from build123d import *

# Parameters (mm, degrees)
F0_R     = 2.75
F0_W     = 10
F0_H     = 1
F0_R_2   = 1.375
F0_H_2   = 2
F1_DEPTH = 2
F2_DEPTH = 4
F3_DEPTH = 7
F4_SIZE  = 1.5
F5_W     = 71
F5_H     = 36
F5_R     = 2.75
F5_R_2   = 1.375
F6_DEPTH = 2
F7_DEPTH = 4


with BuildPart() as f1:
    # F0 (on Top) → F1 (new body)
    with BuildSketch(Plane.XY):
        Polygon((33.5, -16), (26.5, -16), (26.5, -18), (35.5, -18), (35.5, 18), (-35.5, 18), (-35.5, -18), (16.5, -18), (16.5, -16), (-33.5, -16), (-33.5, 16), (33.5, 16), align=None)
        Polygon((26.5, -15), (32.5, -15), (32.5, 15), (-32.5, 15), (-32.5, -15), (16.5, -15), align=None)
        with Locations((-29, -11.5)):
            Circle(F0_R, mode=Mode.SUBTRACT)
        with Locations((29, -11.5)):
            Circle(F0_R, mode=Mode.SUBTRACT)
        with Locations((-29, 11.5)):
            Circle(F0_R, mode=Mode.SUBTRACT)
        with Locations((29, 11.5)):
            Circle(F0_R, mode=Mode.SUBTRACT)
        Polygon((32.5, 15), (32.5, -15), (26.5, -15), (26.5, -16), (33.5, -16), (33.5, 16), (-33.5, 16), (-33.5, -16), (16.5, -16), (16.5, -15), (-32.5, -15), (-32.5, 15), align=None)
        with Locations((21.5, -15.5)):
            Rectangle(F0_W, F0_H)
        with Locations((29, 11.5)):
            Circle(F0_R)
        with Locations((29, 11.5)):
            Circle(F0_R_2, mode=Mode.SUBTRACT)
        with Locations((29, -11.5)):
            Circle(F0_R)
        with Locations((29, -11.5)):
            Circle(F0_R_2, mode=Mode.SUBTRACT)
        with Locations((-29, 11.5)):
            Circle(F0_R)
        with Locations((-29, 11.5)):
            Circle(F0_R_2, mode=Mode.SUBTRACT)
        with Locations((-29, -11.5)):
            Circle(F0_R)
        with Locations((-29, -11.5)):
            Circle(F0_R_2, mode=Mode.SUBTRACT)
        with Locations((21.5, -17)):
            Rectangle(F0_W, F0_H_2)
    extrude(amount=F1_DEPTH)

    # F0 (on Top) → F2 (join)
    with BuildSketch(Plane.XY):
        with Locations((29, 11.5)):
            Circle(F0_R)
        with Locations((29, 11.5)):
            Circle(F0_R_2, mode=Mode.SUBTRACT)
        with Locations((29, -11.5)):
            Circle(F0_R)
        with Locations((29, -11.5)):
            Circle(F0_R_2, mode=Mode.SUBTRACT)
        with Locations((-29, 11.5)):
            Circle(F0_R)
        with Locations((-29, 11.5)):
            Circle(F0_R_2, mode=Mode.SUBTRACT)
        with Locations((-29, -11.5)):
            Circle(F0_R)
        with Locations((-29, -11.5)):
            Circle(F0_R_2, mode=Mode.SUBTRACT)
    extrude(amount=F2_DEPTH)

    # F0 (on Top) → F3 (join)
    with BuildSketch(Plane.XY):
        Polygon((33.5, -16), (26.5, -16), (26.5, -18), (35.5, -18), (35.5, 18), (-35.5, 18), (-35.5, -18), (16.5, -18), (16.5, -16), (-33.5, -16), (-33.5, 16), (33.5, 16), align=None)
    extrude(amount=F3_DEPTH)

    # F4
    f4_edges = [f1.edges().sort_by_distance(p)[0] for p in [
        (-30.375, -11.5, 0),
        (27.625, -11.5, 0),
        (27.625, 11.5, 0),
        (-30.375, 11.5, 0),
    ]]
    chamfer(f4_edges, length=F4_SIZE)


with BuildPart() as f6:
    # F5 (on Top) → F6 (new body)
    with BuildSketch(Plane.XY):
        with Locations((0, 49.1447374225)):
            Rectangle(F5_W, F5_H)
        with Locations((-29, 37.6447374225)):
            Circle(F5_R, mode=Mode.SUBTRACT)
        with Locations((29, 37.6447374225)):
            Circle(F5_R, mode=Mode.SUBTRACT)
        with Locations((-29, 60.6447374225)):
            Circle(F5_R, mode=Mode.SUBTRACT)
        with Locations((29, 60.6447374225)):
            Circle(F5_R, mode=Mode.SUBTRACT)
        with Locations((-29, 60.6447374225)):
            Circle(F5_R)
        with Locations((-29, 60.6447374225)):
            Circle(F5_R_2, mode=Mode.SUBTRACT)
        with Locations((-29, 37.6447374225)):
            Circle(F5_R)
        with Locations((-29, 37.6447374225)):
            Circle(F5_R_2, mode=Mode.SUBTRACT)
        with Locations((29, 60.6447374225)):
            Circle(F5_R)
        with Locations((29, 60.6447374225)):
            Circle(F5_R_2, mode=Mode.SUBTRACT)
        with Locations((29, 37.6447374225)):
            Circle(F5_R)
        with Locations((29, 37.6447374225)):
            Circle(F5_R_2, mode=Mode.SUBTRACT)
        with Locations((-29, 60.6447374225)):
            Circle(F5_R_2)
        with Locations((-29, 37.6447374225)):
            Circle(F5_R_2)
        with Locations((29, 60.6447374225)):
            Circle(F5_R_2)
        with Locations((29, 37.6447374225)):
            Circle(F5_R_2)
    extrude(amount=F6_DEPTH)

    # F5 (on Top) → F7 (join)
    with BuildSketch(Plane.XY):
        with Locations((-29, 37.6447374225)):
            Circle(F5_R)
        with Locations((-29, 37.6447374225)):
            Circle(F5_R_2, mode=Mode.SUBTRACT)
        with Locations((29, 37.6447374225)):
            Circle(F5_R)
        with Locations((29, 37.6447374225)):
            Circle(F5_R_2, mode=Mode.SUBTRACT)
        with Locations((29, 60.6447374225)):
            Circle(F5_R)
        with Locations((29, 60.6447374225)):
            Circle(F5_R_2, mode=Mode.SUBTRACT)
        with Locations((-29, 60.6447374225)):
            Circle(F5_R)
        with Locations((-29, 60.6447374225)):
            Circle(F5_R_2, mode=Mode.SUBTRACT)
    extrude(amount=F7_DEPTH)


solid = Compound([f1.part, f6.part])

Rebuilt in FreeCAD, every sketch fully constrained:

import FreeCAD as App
import Part
import Sketcher


def edges_at(feature, points):
    """Names of the edges that pass closest to the given points."""
    edges = feature.Shape.Edges
    near = lambda p: min(range(len(edges)), key=lambda i: edges[i].distToShape(Part.Vertex(*p))[0])
    return sorted({f"Edge{near(p) + 1}" for p in points})

doc = App.newDocument("Part")
body = doc.addObject("PartDesign::Body", "Body")

# Sketch on XY plane
sketch1 = body.newObject("Sketcher::SketchObject", "Sketch")
sketch1.AttachmentSupport = (doc.getObject("XY_Plane"), [""])
sketch1.MapMode = "FlatFace"
sketch1.addGeometry([
    Part.LineSegment(App.Vector(35.5, -18, 0), App.Vector(35.5, 18, 0)),  # 0
    Part.LineSegment(App.Vector(35.5, 18, 0), App.Vector(-35.5, 18, 0)),  # 1
    Part.LineSegment(App.Vector(-35.5, 18, 0), App.Vector(-35.5, -18, 0)),  # 2
    Part.LineSegment(App.Vector(-35.5, -18, 0), App.Vector(35.5, -18, 0)),  # 3
    Part.Circle(App.Vector(-29, -11.5, 0), App.Vector(0, 0, 1), 1.4),  # 4
    Part.Circle(App.Vector(29, -11.5, 0), App.Vector(0, 0, 1), 1.4),  # 5
    Part.Circle(App.Vector(-29, 11.5, 0), App.Vector(0, 0, 1), 1.4),  # 6
    Part.Circle(App.Vector(29, 11.5, 0), App.Vector(0, 0, 1), 1.4),  # 7
], False)
sketch1.addConstraint([
    Sketcher.Constraint("Coincident", 0, 2, 1, 1),
    Sketcher.Constraint("Coincident", 1, 2, 2, 1),
    Sketcher.Constraint("Coincident", 2, 2, 3, 1),
    Sketcher.Constraint("Coincident", 3, 2, 0, 1),
    Sketcher.Constraint("Vertical", 0),
    Sketcher.Constraint("Horizontal", 1),
    Sketcher.Constraint("Vertical", 2),
    Sketcher.Constraint("Horizontal", 3),
    Sketcher.Constraint("Equal", 4, 5),
    Sketcher.Constraint("Equal", 5, 6),
    Sketcher.Constraint("Equal", 6, 7),
    Sketcher.Constraint("Symmetric", 5, 3, 6, 3, -1, 1),
    Sketcher.Constraint("Symmetric", 4, 3, 7, 3, -1, 1),
    Sketcher.Constraint("Symmetric", 0, 2, 2, 2, -1, 1),
    Sketcher.Constraint("Symmetric", 4, 3, 5, 3, -2),
    Sketcher.Constraint("Diameter", 4, 2.75),
    Sketcher.Constraint("DistanceX", 1, 2, 1, 1, 71.0),
    Sketcher.Constraint("DistanceY", 0, 1, 0, 2, 36.0),
    Sketcher.Constraint("DistanceX", 4, 3, -1, 1, 29.0),
    Sketcher.Constraint("DistanceY", 4, 3, 6, 3, 23.0),
])
pad1 = body.newObject("PartDesign::Pad", "Pad")
pad1.Profile = sketch1
pad1.Length = 2

# Sketch on XY plane
sketch2 = body.newObject("Sketcher::SketchObject", "Sketch001")
sketch2.AttachmentSupport = (doc.getObject("XY_Plane"), [""])
sketch2.MapMode = "FlatFace"
sketch2.addGeometry([
    Part.Circle(App.Vector(29, 11.5, 0), App.Vector(0, 0, 1), 2.8),  # 0
    Part.Circle(App.Vector(29, 11.5, 0), App.Vector(0, 0, 1), 1.4),  # 1
    Part.Circle(App.Vector(29, -11.5, 0), App.Vector(0, 0, 1), 2.8),  # 2
    Part.Circle(App.Vector(29, -11.5, 0), App.Vector(0, 0, 1), 1.4),  # 3
    Part.Circle(App.Vector(-29, 11.5, 0), App.Vector(0, 0, 1), 2.8),  # 4
    Part.Circle(App.Vector(-29, 11.5, 0), App.Vector(0, 0, 1), 1.4),  # 5
    Part.Circle(App.Vector(-29, -11.5, 0), App.Vector(0, 0, 1), 2.8),  # 6
    Part.Circle(App.Vector(-29, -11.5, 0), App.Vector(0, 0, 1), 1.4),  # 7
], False)
sketch2.addConstraint([
    Sketcher.Constraint("Coincident", 1, 3, 0, 3),
    Sketcher.Constraint("Coincident", 3, 3, 2, 3),
    Sketcher.Constraint("Coincident", 5, 3, 4, 3),
    Sketcher.Constraint("Coincident", 7, 3, 6, 3),
    Sketcher.Constraint("Equal", 0, 2),
    Sketcher.Constraint("Equal", 1, 3),
    Sketcher.Constraint("Equal", 2, 4),
    Sketcher.Constraint("Equal", 3, 5),
    Sketcher.Constraint("Equal", 4, 6),
    Sketcher.Constraint("Equal", 5, 7),
    Sketcher.Constraint("Symmetric", 2, 3, 4, 3, -1, 1),
    Sketcher.Constraint("Symmetric", 0, 3, 6, 3, -1, 1),
    Sketcher.Constraint("Symmetric", 0, 3, 4, 3, -2),
    Sketcher.Constraint("Diameter", 0, 5.5),
    Sketcher.Constraint("Diameter", 1, 2.75),
    Sketcher.Constraint("DistanceX", -1, 1, 0, 3, 29.0),
    Sketcher.Constraint("DistanceY", 2, 3, 0, 3, 23.0),
])
pad2 = body.newObject("PartDesign::Pad", "Pad001")
pad2.Profile = sketch2
pad2.Length = 4

# Sketch on XY plane
sketch3 = body.newObject("Sketcher::SketchObject", "Sketch002")
sketch3.AttachmentSupport = (doc.getObject("XY_Plane"), [""])
sketch3.MapMode = "FlatFace"
sketch3.addGeometry([
    Part.LineSegment(App.Vector(33.5, -16, 0), App.Vector(26.5, -16, 0)),  # 0
    Part.LineSegment(App.Vector(26.5, -16, 0), App.Vector(26.5, -18, 0)),  # 1
    Part.LineSegment(App.Vector(26.5, -18, 0), App.Vector(35.5, -18, 0)),  # 2
    Part.LineSegment(App.Vector(35.5, -18, 0), App.Vector(35.5, 18, 0)),  # 3
    Part.LineSegment(App.Vector(35.5, 18, 0), App.Vector(-35.5, 18, 0)),  # 4
    Part.LineSegment(App.Vector(-35.5, 18, 0), App.Vector(-35.5, -18, 0)),  # 5
    Part.LineSegment(App.Vector(-35.5, -18, 0), App.Vector(16.5, -18, 0)),  # 6
    Part.LineSegment(App.Vector(16.5, -18, 0), App.Vector(16.5, -16, 0)),  # 7
    Part.LineSegment(App.Vector(16.5, -16, 0), App.Vector(-33.5, -16, 0)),  # 8
    Part.LineSegment(App.Vector(-33.5, -16, 0), App.Vector(-33.5, 16, 0)),  # 9
    Part.LineSegment(App.Vector(-33.5, 16, 0), App.Vector(33.5, 16, 0)),  # 10
    Part.LineSegment(App.Vector(33.5, 16, 0), App.Vector(33.5, -16, 0)),  # 11
], False)
sketch3.addConstraint([
    Sketcher.Constraint("Coincident", 0, 2, 1, 1),
    Sketcher.Constraint("Coincident", 1, 2, 2, 1),
    Sketcher.Constraint("Coincident", 2, 2, 3, 1),
    Sketcher.Constraint("Coincident", 3, 2, 4, 1),
    Sketcher.Constraint("Coincident", 4, 2, 5, 1),
    Sketcher.Constraint("Coincident", 5, 2, 6, 1),
    Sketcher.Constraint("Coincident", 6, 2, 7, 1),
    Sketcher.Constraint("Coincident", 7, 2, 8, 1),
    Sketcher.Constraint("Coincident", 8, 2, 9, 1),
    Sketcher.Constraint("Coincident", 9, 2, 10, 1),
    Sketcher.Constraint("Coincident", 10, 2, 11, 1),
    Sketcher.Constraint("Coincident", 11, 2, 0, 1),
    Sketcher.Constraint("Horizontal", 0),
    Sketcher.Constraint("Vertical", 1),
    Sketcher.Constraint("Horizontal", 2),
    Sketcher.Constraint("Vertical", 3),
    Sketcher.Constraint("Horizontal", 4),
    Sketcher.Constraint("Vertical", 5),
    Sketcher.Constraint("Horizontal", 6),
    Sketcher.Constraint("Vertical", 7),
    Sketcher.Constraint("Horizontal", 8),
    Sketcher.Constraint("Vertical", 9),
    Sketcher.Constraint("Horizontal", 10),
    Sketcher.Constraint("Vertical", 11),
    Sketcher.Constraint("Symmetric", 2, 2, 4, 2, -1, 1),
    Sketcher.Constraint("Symmetric", 8, 2, 10, 2, -1, 1),
    Sketcher.Constraint("Horizontal", 2, 2, 5, 2),
    Sketcher.Constraint("Horizontal", 0, 2, 7, 2),
    Sketcher.Constraint("DistanceX", 0, 2, 0, 1, 7.0),
    Sketcher.Constraint("DistanceX", 2, 1, 2, 2, 9.0),
    Sketcher.Constraint("DistanceX", 4, 2, 4, 1, 71.0),
    Sketcher.Constraint("DistanceX", 6, 1, 6, 2, 52.0),
    Sketcher.Constraint("DistanceY", 1, 2, 1, 1, 2.0),
    Sketcher.Constraint("DistanceY", 3, 1, 3, 2, 36.0),
])
pad3 = body.newObject("PartDesign::Pad", "Pad002")
pad3.Profile = sketch3
pad3.Length = 7
doc.recompute()

chamfer = body.newObject("PartDesign::Chamfer", "Chamfer")
chamfer.Base = (pad3, edges_at(pad3, [
    (-30.375, -11.5, 0),
    (27.625, -11.5, 0),
    (27.625, 11.5, 0),
    (-30.375, 11.5, 0),
]))
chamfer.Size = 1.5
body2 = doc.addObject("PartDesign::Body", "Body001")

# Sketch on XY plane
sketch4 = body2.newObject("Sketcher::SketchObject", "Sketch003")
sketch4.AttachmentSupport = (doc.getObject("XY_Plane001"), [""])
sketch4.MapMode = "FlatFace"
sketch4.addGeometry([
    Part.LineSegment(App.Vector(-36, 67, 0), App.Vector(-36, 31, 0)),
    Part.LineSegment(App.Vector(-36, 31, 0), App.Vector(36, 31, 0)),
    Part.LineSegment(App.Vector(36, 31, 0), App.Vector(36, 67, 0)),
    Part.LineSegment(App.Vector(36, 67, 0), App.Vector(-36, 67, 0)),
], False)
sketch4.addConstraint([
    Sketcher.Constraint("Coincident", 0, 2, 1, 1),
    Sketcher.Constraint("Coincident", 1, 2, 2, 1),
    Sketcher.Constraint("Coincident", 2, 2, 3, 1),
    Sketcher.Constraint("Coincident", 3, 2, 0, 1),
    Sketcher.Constraint("Vertical", 0),
    Sketcher.Constraint("Horizontal", 1),
    Sketcher.Constraint("Vertical", 2),
    Sketcher.Constraint("Horizontal", 3),
    Sketcher.Constraint("DistanceX", 1, 1, 1, 2, 71.0),
    Sketcher.Constraint("DistanceY", 0, 2, 0, 1, 36.0),
    Sketcher.Constraint("DistanceX", 0, 2, -1, 1, 35.5),
    Sketcher.Constraint("DistanceY", -1, 1, 0, 2, 31.144737),
])
pad4 = body2.newObject("PartDesign::Pad", "Pad003")
pad4.Profile = sketch4
pad4.Length = 2

# Sketch on XY plane
sketch5 = body2.newObject("Sketcher::SketchObject", "Sketch004")
sketch5.AttachmentSupport = (doc.getObject("XY_Plane001"), [""])
sketch5.MapMode = "FlatFace"
sketch5.addGeometry([
    Part.Circle(App.Vector(-29, 37.6, 0), App.Vector(0, 0, 1), 2.8),  # 0
    Part.Circle(App.Vector(-29, 37.6, 0), App.Vector(0, 0, 1), 1.4),  # 1
    Part.Circle(App.Vector(29, 37.6, 0), App.Vector(0, 0, 1), 2.8),  # 2
    Part.Circle(App.Vector(29, 37.6, 0), App.Vector(0, 0, 1), 1.4),  # 3
    Part.Circle(App.Vector(29, 60.6, 0), App.Vector(0, 0, 1), 2.8),  # 4
    Part.Circle(App.Vector(29, 60.6, 0), App.Vector(0, 0, 1), 1.4),  # 5
    Part.Circle(App.Vector(-29, 60.6, 0), App.Vector(0, 0, 1), 2.8),  # 6
    Part.Circle(App.Vector(-29, 60.6, 0), App.Vector(0, 0, 1), 1.4),  # 7
], False)
sketch5.addConstraint([
    Sketcher.Constraint("Coincident", 1, 3, 0, 3),
    Sketcher.Constraint("Coincident", 3, 3, 2, 3),
    Sketcher.Constraint("Coincident", 5, 3, 4, 3),
    Sketcher.Constraint("Coincident", 7, 3, 6, 3),
    Sketcher.Constraint("Equal", 0, 2),
    Sketcher.Constraint("Equal", 1, 3),
    Sketcher.Constraint("Equal", 2, 4),
    Sketcher.Constraint("Equal", 3, 5),
    Sketcher.Constraint("Equal", 4, 6),
    Sketcher.Constraint("Equal", 5, 7),
    Sketcher.Constraint("Symmetric", 0, 3, 2, 3, -2),
    Sketcher.Constraint("Symmetric", 4, 3, 6, 3, -2),
    Sketcher.Constraint("Vertical", 3, 3, 4, 3),
    Sketcher.Constraint("Diameter", 0, 5.5),
    Sketcher.Constraint("Diameter", 1, 2.75),
    Sketcher.Constraint("DistanceX", 0, 3, -1, 1, 29.0),
    Sketcher.Constraint("DistanceY", 2, 3, 4, 3, 23.0),
    Sketcher.Constraint("DistanceY", -1, 1, 0, 3, 37.644737),
])
pad5 = body2.newObject("PartDesign::Pad", "Pad004")
pad5.Profile = sketch5
pad5.Length = 4

doc.recompute()
